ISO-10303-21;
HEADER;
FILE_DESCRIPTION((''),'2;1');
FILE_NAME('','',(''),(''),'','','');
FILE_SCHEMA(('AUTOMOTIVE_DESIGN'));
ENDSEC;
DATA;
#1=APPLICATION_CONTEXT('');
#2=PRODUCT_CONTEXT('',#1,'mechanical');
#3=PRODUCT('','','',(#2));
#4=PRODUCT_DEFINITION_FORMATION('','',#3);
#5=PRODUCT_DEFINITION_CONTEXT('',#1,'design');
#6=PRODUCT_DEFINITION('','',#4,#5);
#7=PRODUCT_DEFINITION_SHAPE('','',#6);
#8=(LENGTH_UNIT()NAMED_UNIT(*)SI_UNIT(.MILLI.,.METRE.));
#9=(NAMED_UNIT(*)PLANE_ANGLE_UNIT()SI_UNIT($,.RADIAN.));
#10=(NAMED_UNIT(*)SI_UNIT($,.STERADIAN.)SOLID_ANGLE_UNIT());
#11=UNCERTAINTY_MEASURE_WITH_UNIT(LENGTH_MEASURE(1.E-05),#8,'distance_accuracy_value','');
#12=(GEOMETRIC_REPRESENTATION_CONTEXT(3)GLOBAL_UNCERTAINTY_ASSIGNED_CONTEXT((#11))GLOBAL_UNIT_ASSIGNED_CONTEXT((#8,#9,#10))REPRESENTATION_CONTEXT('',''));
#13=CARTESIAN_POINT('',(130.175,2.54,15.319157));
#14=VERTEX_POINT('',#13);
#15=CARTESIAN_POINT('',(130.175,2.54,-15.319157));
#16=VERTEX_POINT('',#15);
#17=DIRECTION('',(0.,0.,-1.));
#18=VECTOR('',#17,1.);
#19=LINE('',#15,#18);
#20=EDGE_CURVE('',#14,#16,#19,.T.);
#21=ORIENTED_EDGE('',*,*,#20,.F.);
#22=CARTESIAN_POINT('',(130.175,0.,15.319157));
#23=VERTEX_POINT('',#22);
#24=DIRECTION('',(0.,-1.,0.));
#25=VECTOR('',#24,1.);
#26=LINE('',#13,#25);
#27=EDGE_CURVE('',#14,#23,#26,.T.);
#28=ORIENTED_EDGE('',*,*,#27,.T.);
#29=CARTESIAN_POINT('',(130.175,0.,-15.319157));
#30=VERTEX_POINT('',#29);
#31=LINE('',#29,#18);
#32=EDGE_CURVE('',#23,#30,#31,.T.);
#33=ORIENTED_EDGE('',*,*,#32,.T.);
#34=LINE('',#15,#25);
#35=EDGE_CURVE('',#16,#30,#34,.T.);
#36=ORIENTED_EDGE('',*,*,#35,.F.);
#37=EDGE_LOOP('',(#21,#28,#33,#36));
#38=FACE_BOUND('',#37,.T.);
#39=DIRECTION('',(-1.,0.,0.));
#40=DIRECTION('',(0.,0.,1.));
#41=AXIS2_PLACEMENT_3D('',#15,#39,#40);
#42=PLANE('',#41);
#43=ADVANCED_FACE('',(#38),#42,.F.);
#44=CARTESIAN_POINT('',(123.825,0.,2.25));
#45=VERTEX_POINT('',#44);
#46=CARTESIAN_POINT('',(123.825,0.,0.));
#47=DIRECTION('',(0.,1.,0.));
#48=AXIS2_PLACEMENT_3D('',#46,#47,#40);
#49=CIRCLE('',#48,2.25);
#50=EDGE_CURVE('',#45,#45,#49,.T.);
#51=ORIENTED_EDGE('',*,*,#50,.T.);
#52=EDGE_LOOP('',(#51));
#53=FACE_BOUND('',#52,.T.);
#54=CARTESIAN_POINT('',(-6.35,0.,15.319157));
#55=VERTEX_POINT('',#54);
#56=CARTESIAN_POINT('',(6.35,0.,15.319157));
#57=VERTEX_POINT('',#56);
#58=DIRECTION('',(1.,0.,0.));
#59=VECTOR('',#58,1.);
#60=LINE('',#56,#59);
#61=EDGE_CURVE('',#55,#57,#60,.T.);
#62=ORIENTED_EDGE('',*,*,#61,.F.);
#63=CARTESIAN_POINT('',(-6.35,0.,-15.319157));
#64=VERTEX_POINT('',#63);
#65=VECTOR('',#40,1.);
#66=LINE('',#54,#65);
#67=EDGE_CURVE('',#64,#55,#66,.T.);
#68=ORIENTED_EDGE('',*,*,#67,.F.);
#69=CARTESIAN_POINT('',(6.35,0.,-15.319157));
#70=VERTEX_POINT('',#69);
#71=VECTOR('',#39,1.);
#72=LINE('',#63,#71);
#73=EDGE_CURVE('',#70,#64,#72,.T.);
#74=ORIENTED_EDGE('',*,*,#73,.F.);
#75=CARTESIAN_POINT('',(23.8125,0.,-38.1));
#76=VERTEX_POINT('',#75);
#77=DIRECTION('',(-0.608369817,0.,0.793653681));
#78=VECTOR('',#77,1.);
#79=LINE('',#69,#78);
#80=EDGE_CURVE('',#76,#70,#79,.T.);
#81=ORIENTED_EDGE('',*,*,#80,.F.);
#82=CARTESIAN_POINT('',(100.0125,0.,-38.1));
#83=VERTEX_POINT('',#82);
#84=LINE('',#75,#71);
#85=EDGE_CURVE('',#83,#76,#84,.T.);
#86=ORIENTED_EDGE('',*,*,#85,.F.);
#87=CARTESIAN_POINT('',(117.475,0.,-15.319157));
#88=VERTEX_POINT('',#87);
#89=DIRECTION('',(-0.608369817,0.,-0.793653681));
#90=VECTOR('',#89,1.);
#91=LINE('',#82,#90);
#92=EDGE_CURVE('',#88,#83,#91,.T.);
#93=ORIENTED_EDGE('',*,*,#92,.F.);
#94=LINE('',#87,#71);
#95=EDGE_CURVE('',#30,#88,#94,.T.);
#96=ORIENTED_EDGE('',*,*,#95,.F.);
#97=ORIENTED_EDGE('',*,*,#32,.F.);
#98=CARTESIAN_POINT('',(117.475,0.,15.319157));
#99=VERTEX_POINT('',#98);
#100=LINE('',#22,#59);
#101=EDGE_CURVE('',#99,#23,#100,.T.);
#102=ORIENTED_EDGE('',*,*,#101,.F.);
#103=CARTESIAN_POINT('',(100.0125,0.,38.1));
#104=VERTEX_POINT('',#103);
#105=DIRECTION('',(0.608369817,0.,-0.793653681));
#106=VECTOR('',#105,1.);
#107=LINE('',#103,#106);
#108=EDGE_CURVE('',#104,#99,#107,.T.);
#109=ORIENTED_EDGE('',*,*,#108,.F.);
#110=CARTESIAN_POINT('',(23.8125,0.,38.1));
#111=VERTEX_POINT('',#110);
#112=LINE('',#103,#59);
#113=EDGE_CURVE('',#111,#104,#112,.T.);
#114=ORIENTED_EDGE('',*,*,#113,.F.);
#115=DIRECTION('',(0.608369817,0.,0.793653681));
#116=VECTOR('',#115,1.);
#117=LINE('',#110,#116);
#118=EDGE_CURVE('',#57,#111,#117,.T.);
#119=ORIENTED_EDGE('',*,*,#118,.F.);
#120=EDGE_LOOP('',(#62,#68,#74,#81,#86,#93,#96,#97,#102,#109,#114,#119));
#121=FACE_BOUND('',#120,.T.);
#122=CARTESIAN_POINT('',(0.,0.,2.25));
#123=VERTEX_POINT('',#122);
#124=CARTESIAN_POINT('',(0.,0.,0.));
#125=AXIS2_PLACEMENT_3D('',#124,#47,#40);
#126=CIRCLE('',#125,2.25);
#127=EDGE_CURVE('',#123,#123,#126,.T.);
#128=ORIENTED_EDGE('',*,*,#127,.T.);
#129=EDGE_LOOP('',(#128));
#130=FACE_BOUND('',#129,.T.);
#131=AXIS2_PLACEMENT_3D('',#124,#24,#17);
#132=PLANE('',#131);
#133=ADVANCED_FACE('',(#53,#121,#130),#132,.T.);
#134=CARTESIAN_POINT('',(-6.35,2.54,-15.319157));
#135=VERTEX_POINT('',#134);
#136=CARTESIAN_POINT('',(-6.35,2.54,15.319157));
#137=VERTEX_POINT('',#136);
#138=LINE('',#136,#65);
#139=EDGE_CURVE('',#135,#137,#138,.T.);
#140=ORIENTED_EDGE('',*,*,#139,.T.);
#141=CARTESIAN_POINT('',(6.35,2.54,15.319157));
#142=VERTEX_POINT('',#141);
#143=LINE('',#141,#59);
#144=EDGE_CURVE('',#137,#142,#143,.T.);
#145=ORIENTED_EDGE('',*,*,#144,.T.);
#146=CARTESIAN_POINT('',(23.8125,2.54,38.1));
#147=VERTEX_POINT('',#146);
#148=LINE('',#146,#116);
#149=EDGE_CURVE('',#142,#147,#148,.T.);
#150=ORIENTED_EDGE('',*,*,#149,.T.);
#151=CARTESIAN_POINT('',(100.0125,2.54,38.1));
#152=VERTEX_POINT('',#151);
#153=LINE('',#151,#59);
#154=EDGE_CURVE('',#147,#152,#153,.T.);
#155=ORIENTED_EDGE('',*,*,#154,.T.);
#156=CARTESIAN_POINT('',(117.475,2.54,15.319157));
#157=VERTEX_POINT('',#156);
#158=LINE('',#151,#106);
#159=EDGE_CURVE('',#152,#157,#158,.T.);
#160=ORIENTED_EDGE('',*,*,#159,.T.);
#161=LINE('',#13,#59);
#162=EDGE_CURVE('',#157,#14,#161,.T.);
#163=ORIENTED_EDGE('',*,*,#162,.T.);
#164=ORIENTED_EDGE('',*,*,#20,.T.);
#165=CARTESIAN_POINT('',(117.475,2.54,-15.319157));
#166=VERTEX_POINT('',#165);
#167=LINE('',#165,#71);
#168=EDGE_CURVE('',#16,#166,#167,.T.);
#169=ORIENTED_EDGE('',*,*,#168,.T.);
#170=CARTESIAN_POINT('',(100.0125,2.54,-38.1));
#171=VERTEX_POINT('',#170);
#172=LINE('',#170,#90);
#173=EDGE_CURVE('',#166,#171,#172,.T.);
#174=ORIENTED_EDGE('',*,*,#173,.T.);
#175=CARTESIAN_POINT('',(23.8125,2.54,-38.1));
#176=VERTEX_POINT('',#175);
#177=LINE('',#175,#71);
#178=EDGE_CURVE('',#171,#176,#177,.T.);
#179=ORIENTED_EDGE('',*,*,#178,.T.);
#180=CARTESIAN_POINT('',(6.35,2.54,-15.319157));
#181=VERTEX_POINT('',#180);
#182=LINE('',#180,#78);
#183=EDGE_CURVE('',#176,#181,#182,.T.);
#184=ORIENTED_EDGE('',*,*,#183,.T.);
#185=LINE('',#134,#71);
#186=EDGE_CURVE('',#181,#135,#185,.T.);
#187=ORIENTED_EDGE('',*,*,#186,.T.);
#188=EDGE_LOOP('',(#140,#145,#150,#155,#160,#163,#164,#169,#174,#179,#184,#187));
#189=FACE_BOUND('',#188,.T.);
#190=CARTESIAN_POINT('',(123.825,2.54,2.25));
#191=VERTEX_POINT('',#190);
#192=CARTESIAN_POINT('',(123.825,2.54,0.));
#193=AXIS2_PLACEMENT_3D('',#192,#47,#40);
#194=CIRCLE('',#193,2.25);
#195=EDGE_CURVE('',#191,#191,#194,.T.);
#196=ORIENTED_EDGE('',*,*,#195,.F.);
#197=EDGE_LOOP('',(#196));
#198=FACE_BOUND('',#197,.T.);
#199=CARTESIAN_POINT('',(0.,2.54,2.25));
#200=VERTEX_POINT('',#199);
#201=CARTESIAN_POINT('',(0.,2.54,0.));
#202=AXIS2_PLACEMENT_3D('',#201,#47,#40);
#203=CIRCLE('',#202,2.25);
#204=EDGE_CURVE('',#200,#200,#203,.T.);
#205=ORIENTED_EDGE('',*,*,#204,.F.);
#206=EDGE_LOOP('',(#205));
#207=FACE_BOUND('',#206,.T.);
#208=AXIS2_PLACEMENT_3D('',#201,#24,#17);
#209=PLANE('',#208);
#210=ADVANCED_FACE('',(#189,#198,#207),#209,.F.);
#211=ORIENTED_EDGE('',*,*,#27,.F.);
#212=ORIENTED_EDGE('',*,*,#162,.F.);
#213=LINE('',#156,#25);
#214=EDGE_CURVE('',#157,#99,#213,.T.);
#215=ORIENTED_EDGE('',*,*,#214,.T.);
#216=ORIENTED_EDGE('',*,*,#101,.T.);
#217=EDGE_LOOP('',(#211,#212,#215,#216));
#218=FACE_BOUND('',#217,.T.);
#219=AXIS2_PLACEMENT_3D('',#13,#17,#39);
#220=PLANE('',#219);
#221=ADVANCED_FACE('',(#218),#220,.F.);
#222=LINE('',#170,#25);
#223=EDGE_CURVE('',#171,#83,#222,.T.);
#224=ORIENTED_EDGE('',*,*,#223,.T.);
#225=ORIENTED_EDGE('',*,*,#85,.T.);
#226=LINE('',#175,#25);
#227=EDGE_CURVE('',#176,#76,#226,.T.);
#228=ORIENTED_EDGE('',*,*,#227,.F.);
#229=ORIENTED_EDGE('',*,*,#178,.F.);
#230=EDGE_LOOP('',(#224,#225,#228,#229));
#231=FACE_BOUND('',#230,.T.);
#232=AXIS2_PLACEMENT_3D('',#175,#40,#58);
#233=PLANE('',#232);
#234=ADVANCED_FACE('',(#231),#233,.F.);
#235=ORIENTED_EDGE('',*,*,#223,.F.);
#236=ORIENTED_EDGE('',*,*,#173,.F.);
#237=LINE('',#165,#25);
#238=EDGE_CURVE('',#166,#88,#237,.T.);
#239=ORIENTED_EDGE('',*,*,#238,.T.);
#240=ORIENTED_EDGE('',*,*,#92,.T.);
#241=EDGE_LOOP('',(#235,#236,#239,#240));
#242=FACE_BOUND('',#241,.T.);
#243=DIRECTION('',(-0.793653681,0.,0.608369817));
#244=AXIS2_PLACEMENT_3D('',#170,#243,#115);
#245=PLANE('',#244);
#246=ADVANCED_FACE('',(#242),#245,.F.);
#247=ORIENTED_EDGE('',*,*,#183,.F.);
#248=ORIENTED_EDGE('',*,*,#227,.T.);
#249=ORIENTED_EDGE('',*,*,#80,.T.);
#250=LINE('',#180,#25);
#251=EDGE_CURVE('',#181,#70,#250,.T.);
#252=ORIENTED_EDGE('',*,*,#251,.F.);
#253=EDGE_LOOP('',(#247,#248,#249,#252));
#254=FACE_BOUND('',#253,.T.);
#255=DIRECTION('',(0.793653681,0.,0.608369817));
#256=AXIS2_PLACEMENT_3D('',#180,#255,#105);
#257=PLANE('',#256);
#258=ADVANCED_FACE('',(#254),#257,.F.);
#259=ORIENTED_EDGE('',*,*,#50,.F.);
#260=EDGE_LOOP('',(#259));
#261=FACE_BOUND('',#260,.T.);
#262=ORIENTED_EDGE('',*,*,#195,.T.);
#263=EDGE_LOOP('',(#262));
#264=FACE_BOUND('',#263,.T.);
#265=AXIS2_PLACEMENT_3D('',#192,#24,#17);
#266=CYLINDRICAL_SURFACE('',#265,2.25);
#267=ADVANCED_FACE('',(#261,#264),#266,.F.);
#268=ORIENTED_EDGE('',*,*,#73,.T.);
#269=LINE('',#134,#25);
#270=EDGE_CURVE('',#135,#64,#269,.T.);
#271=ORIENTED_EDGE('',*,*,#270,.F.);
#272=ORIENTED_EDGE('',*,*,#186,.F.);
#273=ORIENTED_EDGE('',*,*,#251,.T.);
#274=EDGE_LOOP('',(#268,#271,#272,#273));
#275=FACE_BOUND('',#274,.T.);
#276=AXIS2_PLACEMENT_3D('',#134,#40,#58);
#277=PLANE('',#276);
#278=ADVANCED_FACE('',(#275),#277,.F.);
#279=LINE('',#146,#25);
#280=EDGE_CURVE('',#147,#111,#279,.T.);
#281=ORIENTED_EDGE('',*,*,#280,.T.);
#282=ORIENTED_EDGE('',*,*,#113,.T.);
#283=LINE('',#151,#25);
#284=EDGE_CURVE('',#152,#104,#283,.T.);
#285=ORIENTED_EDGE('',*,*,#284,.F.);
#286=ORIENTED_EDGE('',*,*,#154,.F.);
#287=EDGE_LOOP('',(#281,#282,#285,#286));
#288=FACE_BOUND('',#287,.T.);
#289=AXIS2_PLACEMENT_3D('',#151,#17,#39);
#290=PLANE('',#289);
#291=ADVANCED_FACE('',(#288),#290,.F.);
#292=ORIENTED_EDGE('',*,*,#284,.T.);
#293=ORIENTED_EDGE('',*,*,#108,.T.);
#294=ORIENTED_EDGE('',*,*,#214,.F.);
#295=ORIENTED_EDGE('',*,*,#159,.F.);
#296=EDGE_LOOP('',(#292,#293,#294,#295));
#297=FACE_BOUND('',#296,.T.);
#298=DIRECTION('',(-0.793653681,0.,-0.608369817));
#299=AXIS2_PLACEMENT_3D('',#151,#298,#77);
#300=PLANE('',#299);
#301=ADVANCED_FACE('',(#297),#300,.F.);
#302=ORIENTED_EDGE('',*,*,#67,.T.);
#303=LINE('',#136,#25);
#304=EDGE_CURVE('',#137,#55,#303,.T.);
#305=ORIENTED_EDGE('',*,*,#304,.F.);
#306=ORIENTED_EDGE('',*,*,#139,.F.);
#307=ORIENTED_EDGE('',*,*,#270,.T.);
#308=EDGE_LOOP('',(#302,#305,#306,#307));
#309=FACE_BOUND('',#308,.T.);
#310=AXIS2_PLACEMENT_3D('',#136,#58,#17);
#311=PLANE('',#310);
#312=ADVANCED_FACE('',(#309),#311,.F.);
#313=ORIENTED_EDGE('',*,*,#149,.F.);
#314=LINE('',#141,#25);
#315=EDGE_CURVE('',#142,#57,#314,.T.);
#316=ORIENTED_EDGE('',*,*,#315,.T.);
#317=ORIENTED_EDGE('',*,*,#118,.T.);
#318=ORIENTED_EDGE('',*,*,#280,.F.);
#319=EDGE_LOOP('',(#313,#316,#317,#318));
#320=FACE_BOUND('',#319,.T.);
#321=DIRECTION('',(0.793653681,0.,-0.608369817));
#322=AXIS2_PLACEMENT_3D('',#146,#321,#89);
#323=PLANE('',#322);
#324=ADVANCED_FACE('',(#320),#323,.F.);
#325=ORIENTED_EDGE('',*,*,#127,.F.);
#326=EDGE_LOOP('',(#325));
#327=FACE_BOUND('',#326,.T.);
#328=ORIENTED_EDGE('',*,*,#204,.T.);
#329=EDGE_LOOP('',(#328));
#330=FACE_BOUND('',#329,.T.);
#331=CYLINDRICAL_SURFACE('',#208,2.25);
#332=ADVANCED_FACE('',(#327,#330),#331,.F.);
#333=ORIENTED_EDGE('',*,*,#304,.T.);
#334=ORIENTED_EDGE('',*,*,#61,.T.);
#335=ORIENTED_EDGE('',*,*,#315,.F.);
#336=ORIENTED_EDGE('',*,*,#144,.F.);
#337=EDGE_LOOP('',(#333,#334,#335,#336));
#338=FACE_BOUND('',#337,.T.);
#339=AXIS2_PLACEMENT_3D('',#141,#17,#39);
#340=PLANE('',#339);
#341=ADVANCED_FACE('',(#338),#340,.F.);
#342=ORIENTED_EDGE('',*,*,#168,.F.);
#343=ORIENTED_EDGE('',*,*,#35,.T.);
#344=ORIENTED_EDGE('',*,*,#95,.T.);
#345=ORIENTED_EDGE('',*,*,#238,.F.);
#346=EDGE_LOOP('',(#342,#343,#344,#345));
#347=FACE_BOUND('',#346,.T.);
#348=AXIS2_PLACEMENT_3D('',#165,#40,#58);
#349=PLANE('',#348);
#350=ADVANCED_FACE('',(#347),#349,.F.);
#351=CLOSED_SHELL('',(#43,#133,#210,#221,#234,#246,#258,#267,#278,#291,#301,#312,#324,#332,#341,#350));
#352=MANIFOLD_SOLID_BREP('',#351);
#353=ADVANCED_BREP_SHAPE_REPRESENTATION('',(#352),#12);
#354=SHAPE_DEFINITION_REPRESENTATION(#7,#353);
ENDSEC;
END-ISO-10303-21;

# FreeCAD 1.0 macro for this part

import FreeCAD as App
import Part
import Sketcher

V = App.Vector
Q = App.Units.Quantity


def add_polygon(sketch, points):
    """Adds a closed chain of lines whose ends are joined by coincident constraints."""
    first, n = sketch.GeometryCount, len(points)
    for a, b in zip(points, points[1:] + points[:1]):
        sketch.addGeometry(Part.LineSegment(App.Vector(*a, 0), App.Vector(*b, 0)), False)
    for i in range(n):
        sketch.addConstraint(Sketcher.Constraint("Coincident", first + i, 2, first + (i + 1) % n, 1))

doc = App.newDocument("Part")
body = doc.addObject("PartDesign::Body", "Body")

# Sketch on XZ plane
sketch1 = doc.addObject("Sketcher::SketchObject", "Sketch")
body.addObject(sketch1)
sketch1.AttachmentSupport = (doc.XZ_Plane, [""])
sketch1.MapMode = "FlatFace"
add_polygon(sketch1, [(6.3, -15.3), (-6.3, -15.3), (-6.3, 15.3), (6.3, 15.3), (23.8, 38.1), (100, 38.1), (117.5, 15.3), (130.2, 15.3), (130.2, -15.3), (117.5, -15.3), (100, -38.1), (23.8, -38.1)])  # lines 0-11
sketch1.addGeometry(Part.Circle(V(123.8, 0, 0), V(0, 0, 1), 2.2), False)  # 12
sketch1.addGeometry(Part.Circle(V(0, 0, 0), V(0, 0, 1), 2.2), False)  # 13
sketch1.addConstraint([
    Sketcher.Constraint("Horizontal", 0),
    Sketcher.Constraint("Vertical", 1),
    Sketcher.Constraint("Horizontal", 2),
    Sketcher.Constraint("Horizontal", 4),
    Sketcher.Constraint("Horizontal", 6),
    Sketcher.Constraint("Vertical", 7),
    Sketcher.Constraint("Horizontal", 8),
    Sketcher.Constraint("Horizontal", 10),
    Sketcher.Constraint("Coincident", 13, 3, -1, 1),
    Sketcher.Constraint("Equal", 12, 13),
    Sketcher.Constraint("Symmetric", 0, 2, 2, 2, -1, 1),
    Sketcher.Constraint("Symmetric", 5, 2, 8, 2, -1),
    Sketcher.Constraint("Symmetric", 4, 2, 9, 2, -1),
    Sketcher.Constraint("PointOnObject", 12, 3, -1),
    Sketcher.Constraint("Parallel", 3, 9),
    Sketcher.Constraint("Parallel", 5, 11),
    Sketcher.Constraint("Horizontal", 2, 2, 5, 2),
    Sketcher.Constraint("Vertical", 3, 2, 10, 2),
    Sketcher.Constraint("Equal", 2, 6),
    Sketcher.Constraint("DistanceX", 4, 1, 4, 2, Q("3 in")),
    Sketcher.Constraint("DistanceX", 0, 2, 0, 1, Q("0.5 in")),
    Sketcher.Constraint("DistanceY", 10, 2, 3, 2, Q("3 in")),
    Sketcher.Constraint("Diameter", 12, 4.5),
    Sketcher.Constraint("DistanceX", 5, 2, 12, 3, Q("0.25 in")),
    Sketcher.Constraint("DistanceX", -1, 1, 12, 3, Q("4.875 in")),
    Sketcher.Constraint("DistanceY", 1, 1, 1, 2, 30.638314),
])
pad1 = doc.addObject("PartDesign::Pad", "Pad")
body.addObject(pad1)
pad1.Profile = sketch1
pad1.Length = Q("0.1 in")
pad1.Reversed = True

doc.recompute()
